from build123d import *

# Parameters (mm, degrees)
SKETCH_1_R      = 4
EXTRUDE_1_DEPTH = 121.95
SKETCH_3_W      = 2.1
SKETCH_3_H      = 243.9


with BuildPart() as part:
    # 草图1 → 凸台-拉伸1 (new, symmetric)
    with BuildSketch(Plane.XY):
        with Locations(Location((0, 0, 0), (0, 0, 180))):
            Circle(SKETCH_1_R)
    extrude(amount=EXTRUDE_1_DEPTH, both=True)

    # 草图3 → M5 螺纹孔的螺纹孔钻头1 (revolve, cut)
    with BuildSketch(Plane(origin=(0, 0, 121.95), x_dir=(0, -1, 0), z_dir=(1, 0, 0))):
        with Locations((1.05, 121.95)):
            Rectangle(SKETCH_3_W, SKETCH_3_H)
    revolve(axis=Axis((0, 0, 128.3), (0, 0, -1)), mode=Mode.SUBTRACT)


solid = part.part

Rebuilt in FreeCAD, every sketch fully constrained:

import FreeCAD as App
import Part
import Sketcher

V = App.Vector
Q = App.Units.Quantity

doc = App.newDocument("Part")
body = doc.addObject("PartDesign::Body", "Body")

# Sketch on XY plane
sketch1 = doc.addObject("Sketcher::SketchObject", "Sketch")
body.addObject(sketch1)
sketch1.AttachmentSupport = (doc.XY_Plane, [""])
sketch1.MapMode = "FlatFace"
sketch1.addGeometry(Part.Circle(V(0, 0, 0), V(0, 0, 1), 4), False)
sketch1.addConstraint([
    Sketcher.Constraint("Coincident", 0, 3, -1, 1),
    Sketcher.Constraint("Diameter", 0, Q("8 mm")),
])
pad1 = doc.addObject("PartDesign::Pad", "Pad")
body.addObject(pad1)
pad1.Profile = sketch1
pad1.Length = 243.9
pad1.Midplane = True

# Sketch on YZ plane
sketch2 = doc.addObject("Sketcher::SketchObject", "Sketch001")
body.addObject(sketch2)
sketch2.AttachmentSupport = (doc.YZ_Plane, [""])
sketch2.MapMode = "FlatFace"
sketch2.addGeometry([
    Part.LineSegment(V(0, -122, 0), V(0, 122, 0)),
    Part.LineSegment(V(0, 122, 0), V(-2.1, 122, 0)),
    Part.LineSegment(V(-2.1, 122, 0), V(-2.1, -122, 0)),
    Part.LineSegment(V(-2.1, -122, 0), V(0, -122, 0)),
], False)
sketch2.addConstraint([
    Sketcher.Constraint("Coincident", 0, 2, 1, 1),
    Sketcher.Constraint("Coincident", 1, 2, 2, 1),
    Sketcher.Constraint("Coincident", 2, 2, 3, 1),
    Sketcher.Constraint("Coincident", 3, 2, 0, 1),
    Sketcher.Constraint("Vertical", 0),
    Sketcher.Constraint("Horizontal", 1),
    Sketcher.Constraint("Vertical", 2),
    Sketcher.Constraint("Horizontal", 3),
    Sketcher.Constraint("Symmetric", 0, 2, 3, 2, -1, 1),
    Sketcher.Constraint("DistanceX", 1, 2, 1, 1, Q("2.1 mm")),
    Sketcher.Constraint("DistanceY", 0, 1, 0, 2, Q("243.9 mm")),
])
groove = doc.addObject("PartDesign::Groove", "Groove")
body.addObject(groove)
groove.Profile = sketch2
groove.ReferenceAxis = (sketch2, ["V_Axis"])
groove.Angle = 360

doc.recompute()
